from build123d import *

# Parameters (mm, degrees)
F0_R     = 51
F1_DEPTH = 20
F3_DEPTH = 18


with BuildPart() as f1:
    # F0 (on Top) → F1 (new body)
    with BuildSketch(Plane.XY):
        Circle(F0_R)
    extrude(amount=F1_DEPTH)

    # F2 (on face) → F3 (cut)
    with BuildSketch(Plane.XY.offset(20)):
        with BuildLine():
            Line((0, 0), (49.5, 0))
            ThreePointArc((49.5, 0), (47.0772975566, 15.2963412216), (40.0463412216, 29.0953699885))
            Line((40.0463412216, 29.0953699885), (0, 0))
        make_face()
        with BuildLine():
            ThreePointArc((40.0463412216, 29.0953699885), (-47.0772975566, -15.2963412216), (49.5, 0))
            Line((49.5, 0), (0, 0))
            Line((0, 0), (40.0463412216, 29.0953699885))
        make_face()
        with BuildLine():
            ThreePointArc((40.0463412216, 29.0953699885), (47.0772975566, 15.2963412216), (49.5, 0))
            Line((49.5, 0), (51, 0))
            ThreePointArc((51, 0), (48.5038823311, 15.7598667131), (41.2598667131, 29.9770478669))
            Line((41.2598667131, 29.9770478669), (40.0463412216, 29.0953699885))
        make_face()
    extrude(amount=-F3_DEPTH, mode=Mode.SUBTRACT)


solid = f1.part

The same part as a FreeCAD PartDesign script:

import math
import FreeCAD as App
import Part
import Sketcher

V = App.Vector
Q = App.Units.Quantity

doc = App.newDocument("Part")
params = doc.addObject("Spreadsheet::Sheet", "Params")
for row, (alias, value) in enumerate([
    ("sketch1_diameter", "102 mm"),
    ("pad1_length", "20 mm"),
    ("sketch2_radius", "51 mm"),
    ("sketch2_radius2", "49.5 mm"),
    ("pocket1_length", "18 mm"),
], start=1):
    params.set(f"A{row}", alias)
    params.set(f"B{row}", "=" + value)
    params.setAlias(f"B{row}", alias)

body = doc.addObject("PartDesign::Body", "Body")

# Sketch on XY plane
sketch1 = body.newObject("Sketcher::SketchObject", "Sketch")
sketch1.AttachmentSupport = (doc.getObject("XY_Plane"), [""])
sketch1.MapMode = "FlatFace"
sketch1.addGeometry(Part.Circle(V(0, 0, 0), V(0, 0, 1), 51), False)
sketch1.addConstraint(Sketcher.Constraint("Coincident", 0, 3, -1, 1))
sketch1.addConstraint(Sketcher.Constraint("Diameter", 0, Q("102 mm")))
sketch1.setExpression("Constraints[1]", "Params.sketch1_diameter")
pad1 = body.newObject("PartDesign::Pad", "Pad")
pad1.Profile = sketch1
pad1.setExpression("Length", "Params.pad1_length")

# Sketch on XY plane
sketch2 = body.newObject("Sketcher::SketchObject", "Sketch001")
sketch2.AttachmentSupport = (doc.getObject("XY_Plane"), [""])
sketch2.MapMode = "FlatFace"
sketch2.AttachmentOffset = App.Placement(V(0, 0, 20), App.Rotation())
sketch2.addGeometry(Part.ArcOfCircle(Part.Circle(V(0, 0, 0), V(0, 0, 1), 49.5), math.radians(36), math.radians(360)), False)
sketch2.addGeometry(Part.LineSegment(V(49.5, 0, 0), V(51, 0, 0)), False)
sketch2.addGeometry(Part.ArcOfCircle(Part.Circle(V(0, 0, 0), V(0, 0, 1), 51), math.radians(0), math.radians(36)), False)
sketch2.addGeometry(Part.LineSegment(V(41.3, 30, 0), V(40, 29.1, 0)), False)
sketch2.addConstraint(Sketcher.Constraint("Coincident", 0, 2, 1, 1))
sketch2.addConstraint(Sketcher.Constraint("Coincident", 1, 2, 2, 1))
sketch2.addConstraint(Sketcher.Constraint("Coincident", 2, 2, 3, 1))
sketch2.addConstraint(Sketcher.Constraint("Coincident", 3, 2, 0, 1))
sketch2.addConstraint(Sketcher.Constraint("Horizontal", 1))
sketch2.addConstraint(Sketcher.Constraint("Coincident", 0, 3, -1, 1))
sketch2.addConstraint(Sketcher.Constraint("Coincident", 2, 3, -1, 1))
sketch2.addConstraint(Sketcher.Constraint("PointOnObject", 0, 2, -1))
sketch2.addConstraint(Sketcher.Constraint("Radius", 2, Q("51 mm")))
sketch2.addConstraint(Sketcher.Constraint("Radius", 0, Q("49.5 mm")))
sketch2.addConstraint(Sketcher.Constraint("Angle", 3, Q("-144 deg")))
sketch2.addConstraint(Sketcher.Constraint("DistanceX", -1, 1, 3, 2, Q("40.046341 mm")))
sketch2.setExpression("Constraints[8]", "Params.sketch2_radius")
sketch2.setExpression("Constraints[9]", "Params.sketch2_radius2")
pocket1 = body.newObject("PartDesign::Pocket", "Pocket")
pocket1.Profile = sketch2
pocket1.setExpression("Length", "Params.pocket1_length")

doc.recompute()
